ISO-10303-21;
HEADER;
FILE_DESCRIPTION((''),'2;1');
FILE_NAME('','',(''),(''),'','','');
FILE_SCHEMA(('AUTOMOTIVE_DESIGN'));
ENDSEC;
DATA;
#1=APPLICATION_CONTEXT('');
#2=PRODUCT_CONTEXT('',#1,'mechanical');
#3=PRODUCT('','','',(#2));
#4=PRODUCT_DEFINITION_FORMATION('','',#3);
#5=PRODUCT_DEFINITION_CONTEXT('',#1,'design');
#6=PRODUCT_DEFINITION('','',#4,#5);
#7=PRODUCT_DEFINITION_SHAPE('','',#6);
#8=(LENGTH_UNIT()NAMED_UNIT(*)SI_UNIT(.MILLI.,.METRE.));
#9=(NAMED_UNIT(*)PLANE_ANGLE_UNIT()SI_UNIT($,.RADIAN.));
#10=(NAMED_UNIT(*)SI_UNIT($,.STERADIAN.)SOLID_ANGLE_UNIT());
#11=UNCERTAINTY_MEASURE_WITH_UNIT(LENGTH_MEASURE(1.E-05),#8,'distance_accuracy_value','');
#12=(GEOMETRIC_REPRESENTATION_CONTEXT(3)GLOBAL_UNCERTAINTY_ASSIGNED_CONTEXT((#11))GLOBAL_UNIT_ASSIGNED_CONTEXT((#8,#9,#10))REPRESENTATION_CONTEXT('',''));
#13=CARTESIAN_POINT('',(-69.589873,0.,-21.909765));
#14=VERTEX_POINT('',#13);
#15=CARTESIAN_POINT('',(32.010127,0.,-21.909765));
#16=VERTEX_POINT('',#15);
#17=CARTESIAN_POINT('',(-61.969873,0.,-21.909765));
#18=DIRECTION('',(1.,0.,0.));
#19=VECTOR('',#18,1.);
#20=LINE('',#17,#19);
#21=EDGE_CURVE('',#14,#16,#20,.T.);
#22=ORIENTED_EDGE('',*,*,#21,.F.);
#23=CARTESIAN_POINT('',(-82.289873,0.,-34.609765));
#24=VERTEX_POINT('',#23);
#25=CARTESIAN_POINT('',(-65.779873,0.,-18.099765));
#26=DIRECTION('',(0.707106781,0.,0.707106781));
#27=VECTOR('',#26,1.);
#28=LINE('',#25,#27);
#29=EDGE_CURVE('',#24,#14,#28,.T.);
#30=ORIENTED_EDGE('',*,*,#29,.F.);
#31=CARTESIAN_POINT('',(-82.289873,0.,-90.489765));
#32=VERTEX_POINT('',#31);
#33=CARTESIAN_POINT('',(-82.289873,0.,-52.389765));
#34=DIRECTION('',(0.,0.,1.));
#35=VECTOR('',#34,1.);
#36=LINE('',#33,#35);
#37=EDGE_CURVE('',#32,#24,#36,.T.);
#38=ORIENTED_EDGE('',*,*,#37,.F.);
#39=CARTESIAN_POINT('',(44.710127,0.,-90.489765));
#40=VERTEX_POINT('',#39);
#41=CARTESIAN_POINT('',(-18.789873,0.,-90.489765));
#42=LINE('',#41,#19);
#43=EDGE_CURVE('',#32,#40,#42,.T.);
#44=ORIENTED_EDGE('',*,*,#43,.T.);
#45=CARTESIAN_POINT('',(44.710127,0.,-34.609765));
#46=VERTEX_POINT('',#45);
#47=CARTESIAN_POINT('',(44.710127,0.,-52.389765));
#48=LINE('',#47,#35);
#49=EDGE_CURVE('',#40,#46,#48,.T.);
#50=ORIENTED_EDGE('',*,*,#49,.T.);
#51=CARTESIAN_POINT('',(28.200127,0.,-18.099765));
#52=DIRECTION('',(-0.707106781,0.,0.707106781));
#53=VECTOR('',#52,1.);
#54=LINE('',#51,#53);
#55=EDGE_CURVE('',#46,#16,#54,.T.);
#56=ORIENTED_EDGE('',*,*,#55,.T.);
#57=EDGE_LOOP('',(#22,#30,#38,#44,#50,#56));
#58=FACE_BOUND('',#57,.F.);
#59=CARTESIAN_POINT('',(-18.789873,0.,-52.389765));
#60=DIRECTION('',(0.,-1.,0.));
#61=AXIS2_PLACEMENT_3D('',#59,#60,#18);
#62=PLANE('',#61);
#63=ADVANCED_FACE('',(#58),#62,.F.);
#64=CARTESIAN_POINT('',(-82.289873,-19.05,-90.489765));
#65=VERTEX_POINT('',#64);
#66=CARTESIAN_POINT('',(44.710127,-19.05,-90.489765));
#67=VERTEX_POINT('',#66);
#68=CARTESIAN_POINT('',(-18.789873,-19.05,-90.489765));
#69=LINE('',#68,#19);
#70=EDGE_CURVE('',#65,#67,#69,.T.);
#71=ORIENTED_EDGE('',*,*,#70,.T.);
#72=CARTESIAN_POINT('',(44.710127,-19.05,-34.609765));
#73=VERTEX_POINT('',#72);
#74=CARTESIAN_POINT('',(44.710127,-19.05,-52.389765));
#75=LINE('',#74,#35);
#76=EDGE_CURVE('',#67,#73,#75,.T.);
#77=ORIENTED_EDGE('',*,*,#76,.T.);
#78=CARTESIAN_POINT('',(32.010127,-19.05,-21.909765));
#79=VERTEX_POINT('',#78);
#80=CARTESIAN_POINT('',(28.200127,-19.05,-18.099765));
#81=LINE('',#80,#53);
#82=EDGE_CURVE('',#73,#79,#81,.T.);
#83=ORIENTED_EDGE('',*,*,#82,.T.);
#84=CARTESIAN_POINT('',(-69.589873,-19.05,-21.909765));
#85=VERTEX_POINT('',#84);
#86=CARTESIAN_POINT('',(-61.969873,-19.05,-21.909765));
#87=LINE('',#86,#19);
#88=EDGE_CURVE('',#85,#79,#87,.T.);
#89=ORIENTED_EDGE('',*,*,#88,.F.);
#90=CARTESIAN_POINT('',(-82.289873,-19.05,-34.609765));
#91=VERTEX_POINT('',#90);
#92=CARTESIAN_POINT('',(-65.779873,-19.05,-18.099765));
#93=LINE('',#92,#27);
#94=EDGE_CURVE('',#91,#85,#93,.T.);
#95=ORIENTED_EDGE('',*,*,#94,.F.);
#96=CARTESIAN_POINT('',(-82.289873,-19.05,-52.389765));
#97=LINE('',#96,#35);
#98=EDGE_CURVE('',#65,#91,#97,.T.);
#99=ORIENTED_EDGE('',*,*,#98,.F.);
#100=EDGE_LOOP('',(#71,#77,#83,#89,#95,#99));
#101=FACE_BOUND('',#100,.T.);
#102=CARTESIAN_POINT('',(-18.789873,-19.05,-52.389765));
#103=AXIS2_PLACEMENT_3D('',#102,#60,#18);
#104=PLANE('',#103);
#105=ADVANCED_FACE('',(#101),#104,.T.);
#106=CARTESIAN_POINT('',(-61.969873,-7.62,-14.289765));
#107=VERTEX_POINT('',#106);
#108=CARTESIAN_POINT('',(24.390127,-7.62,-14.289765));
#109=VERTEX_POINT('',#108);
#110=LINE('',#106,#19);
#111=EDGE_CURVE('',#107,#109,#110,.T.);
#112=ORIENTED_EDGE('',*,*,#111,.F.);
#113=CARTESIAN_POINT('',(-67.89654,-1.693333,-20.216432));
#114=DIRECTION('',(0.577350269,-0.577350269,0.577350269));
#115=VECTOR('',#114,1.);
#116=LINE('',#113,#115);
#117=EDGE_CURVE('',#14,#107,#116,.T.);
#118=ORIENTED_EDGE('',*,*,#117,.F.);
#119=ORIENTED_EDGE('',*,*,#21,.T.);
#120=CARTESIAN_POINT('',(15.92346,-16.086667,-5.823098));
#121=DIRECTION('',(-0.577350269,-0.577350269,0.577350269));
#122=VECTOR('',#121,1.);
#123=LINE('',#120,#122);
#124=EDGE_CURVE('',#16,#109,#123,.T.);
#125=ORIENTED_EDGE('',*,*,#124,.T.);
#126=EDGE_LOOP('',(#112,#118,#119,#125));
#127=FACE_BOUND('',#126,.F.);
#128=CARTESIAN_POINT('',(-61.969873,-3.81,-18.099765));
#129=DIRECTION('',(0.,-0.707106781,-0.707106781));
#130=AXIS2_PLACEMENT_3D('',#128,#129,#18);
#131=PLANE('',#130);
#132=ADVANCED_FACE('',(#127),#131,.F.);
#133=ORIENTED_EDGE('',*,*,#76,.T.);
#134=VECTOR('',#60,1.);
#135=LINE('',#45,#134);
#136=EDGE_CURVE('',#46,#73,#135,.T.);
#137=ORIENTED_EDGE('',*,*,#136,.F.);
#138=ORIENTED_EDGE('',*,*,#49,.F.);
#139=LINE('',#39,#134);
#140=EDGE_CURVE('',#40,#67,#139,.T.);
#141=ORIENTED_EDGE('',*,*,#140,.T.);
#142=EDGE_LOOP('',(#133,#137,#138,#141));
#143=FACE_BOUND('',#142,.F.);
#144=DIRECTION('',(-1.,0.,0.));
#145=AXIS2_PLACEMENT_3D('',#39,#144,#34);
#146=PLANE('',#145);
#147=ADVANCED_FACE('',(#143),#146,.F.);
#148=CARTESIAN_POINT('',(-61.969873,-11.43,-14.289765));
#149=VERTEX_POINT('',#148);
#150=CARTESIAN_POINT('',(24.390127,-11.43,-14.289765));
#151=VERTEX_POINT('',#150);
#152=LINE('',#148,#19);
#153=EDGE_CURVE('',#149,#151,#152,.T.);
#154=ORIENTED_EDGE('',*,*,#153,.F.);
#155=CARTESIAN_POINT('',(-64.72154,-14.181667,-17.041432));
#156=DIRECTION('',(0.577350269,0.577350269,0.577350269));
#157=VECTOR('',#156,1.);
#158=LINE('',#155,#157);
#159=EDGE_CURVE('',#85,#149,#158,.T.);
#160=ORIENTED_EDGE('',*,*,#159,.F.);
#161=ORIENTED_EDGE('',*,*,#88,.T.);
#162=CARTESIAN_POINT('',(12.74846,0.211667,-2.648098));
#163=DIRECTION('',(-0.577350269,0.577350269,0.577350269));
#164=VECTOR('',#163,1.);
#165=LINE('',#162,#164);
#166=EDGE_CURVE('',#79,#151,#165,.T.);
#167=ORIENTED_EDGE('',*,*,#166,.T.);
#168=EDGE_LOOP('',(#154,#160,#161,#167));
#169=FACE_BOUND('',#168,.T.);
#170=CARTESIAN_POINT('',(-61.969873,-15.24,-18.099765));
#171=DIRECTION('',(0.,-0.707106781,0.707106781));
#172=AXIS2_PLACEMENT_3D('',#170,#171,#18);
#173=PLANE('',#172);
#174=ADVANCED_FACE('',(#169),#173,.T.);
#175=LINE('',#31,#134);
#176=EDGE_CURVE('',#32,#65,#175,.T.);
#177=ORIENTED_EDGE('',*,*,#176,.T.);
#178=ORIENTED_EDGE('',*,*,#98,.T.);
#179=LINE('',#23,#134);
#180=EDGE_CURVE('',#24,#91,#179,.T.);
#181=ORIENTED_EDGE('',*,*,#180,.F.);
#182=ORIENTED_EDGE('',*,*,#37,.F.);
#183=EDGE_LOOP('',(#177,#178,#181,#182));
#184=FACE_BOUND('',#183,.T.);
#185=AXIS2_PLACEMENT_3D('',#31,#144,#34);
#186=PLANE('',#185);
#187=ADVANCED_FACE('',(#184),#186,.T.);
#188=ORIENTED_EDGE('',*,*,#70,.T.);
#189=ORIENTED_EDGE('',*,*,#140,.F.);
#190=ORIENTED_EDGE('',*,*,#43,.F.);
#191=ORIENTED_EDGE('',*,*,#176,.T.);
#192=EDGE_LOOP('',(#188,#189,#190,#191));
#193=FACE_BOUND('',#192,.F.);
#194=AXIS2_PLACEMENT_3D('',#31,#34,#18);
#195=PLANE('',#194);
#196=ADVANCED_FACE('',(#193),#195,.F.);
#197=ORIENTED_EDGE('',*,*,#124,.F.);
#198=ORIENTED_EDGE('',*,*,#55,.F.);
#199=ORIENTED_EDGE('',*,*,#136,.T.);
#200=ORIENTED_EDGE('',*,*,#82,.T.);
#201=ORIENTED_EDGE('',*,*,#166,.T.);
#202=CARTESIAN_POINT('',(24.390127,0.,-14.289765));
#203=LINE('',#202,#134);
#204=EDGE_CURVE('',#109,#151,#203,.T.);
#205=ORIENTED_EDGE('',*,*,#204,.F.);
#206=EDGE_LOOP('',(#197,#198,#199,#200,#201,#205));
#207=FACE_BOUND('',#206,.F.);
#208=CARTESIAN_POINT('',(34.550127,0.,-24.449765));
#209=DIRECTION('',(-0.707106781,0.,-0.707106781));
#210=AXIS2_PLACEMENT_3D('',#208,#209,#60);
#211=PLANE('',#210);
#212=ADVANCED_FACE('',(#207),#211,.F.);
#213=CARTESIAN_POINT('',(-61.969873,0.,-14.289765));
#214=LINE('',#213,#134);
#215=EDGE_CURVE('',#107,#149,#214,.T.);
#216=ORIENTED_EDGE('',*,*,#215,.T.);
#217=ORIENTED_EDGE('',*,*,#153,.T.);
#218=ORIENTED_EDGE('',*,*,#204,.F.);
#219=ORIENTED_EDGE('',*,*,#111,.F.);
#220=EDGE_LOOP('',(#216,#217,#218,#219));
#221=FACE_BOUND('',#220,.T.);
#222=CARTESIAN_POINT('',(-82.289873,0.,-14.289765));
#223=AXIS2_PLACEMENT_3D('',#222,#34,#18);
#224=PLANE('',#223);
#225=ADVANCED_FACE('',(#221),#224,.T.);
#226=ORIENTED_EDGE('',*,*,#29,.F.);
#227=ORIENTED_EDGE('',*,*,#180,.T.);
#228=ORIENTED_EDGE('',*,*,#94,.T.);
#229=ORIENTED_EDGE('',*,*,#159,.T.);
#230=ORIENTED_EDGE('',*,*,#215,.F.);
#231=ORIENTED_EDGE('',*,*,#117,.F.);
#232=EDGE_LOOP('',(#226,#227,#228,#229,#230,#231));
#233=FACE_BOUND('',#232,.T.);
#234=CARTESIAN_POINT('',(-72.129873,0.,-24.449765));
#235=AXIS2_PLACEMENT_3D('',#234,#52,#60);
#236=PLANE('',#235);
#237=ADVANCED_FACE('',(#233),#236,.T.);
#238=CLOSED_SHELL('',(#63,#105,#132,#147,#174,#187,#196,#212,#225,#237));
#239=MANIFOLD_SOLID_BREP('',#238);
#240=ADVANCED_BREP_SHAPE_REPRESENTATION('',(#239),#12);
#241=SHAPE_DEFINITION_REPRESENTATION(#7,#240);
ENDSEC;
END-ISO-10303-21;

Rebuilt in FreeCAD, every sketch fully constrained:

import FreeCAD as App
import Part
import Sketcher

V = App.Vector
Q = App.Units.Quantity


def edges_at(feature, points):
    """Names of the edges that pass closest to the given points."""
    edges = feature.Shape.Edges
    near = lambda p: min(range(len(edges)), key=lambda i: edges[i].distToShape(Part.Vertex(*p))[0])
    return sorted({f"Edge{near(p) + 1}" for p in points})


def add_polygon(sketch, points):
    """Adds a closed chain of lines whose ends are joined by coincident constraints."""
    first, n = sketch.GeometryCount, len(points)
    for a, b in zip(points, points[1:] + points[:1]):
        sketch.addGeometry(Part.LineSegment(App.Vector(*a, 0), App.Vector(*b, 0)), False)
    for i in range(n):
        sketch.addConstraint(Sketcher.Constraint("Coincident", first + i, 2, first + (i + 1) % n, 1))

doc = App.newDocument("Part")
body = doc.addObject("PartDesign::Body", "Body")

sketch1 = body.newObject("Sketcher::SketchObject", "Sketch")
sketch1.AttachmentSupport = (doc.getObject("XZ_Plane"), [""])
sketch1.MapMode = "FlatFace"
add_polygon(sketch1, [(-82, -14), (-82, -90), (45, -90), (45, -14)])
sketch1.addConstraint([
    Sketcher.Constraint("Vertical", 0),
    Sketcher.Constraint("Horizontal", 1),
    Sketcher.Constraint("Vertical", 2),
    Sketcher.Constraint("Horizontal", 3),
    Sketcher.Constraint("DistanceX", 1, 1, 1, 2, Q("5 in")),
    Sketcher.Constraint("DistanceY", 0, 2, 0, 1, Q("3 in")),
    Sketcher.Constraint("DistanceX", 0, 2, -1, 1, Q("82.289873 mm")),
    Sketcher.Constraint("DistanceY", 0, 2, -1, 1, Q("90.489765 mm")),
])
pad1 = body.newObject("PartDesign::Pad", "Pad")
pad1.Profile = sketch1
pad1.Length = Q("0.75 in")
doc.recompute()

chamfer = body.newObject("PartDesign::Chamfer", "Chamfer")
chamfer.Base = (pad1, edges_at(pad1, [(44.71, -9.525, -14.29), (-82.29, -9.525, -14.29)]))
chamfer.Size = Q("0.8 in")
doc.recompute()

chamfer2 = body.newObject("PartDesign::Chamfer", "Chamfer001")
chamfer2.Base = (chamfer, edges_at(chamfer, [(-18.79, -19.05, -14.29), (-18.79, 0, -14.29)]))
chamfer2.Size = Q("0.3 in")

doc.recompute()
